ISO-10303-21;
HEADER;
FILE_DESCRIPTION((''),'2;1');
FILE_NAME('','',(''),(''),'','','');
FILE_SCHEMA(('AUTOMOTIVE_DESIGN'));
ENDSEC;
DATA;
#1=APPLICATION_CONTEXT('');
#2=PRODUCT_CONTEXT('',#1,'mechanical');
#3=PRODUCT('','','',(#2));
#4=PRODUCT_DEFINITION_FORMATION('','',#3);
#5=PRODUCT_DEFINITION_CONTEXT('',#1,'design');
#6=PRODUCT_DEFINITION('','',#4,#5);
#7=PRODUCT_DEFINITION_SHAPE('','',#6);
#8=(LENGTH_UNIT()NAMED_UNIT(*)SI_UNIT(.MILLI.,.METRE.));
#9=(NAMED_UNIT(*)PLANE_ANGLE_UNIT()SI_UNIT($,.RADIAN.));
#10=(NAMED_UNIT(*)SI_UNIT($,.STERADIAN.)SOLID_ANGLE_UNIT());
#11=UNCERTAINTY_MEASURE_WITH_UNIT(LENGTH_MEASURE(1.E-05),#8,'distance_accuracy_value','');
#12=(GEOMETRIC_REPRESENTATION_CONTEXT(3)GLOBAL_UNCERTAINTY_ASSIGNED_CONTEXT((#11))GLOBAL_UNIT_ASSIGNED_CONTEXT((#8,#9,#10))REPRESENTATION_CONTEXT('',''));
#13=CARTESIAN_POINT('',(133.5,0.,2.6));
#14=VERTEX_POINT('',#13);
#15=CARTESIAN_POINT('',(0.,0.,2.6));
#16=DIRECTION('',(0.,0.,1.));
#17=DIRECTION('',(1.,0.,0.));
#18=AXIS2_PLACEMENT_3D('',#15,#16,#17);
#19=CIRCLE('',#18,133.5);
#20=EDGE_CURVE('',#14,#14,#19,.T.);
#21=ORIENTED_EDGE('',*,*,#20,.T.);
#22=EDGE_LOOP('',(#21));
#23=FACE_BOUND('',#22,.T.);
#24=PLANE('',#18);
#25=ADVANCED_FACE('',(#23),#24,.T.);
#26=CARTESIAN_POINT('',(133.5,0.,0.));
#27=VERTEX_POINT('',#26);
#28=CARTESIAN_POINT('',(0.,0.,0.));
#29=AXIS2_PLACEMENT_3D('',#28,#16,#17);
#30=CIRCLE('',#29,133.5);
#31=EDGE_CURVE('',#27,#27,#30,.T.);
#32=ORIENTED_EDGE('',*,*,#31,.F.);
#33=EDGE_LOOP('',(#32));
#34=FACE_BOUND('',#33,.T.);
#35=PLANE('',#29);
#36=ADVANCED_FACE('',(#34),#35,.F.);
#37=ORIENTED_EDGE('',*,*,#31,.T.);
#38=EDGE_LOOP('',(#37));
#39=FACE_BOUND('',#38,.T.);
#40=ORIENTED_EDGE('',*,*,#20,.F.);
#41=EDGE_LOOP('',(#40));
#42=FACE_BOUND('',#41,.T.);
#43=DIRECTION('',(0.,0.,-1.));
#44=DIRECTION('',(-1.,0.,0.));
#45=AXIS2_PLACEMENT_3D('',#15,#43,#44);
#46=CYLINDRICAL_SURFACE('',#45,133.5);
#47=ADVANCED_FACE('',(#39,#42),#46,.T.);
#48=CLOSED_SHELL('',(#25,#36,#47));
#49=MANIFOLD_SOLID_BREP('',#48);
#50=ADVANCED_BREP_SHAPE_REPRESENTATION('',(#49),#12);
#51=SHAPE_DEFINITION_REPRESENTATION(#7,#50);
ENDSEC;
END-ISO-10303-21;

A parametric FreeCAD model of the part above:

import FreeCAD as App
import Part
import Sketcher

doc = App.newDocument("Part")
params = doc.addObject("Spreadsheet::Sheet", "Params")
for row, (alias, value) in enumerate([
    ("sketch1_diameter", "267 mm"),
    ("pad1_length", "2.6 mm"),
], start=1):
    params.set(f"A{row}", alias)
    params.set(f"B{row}", "=" + value)
    params.setAlias(f"B{row}", alias)

body = doc.addObject("PartDesign::Body", "Body")

sketch1 = body.newObject("Sketcher::SketchObject", "Sketch")
sketch1.AttachmentSupport = (doc.getObject("XY_Plane"), [""])
sketch1.MapMode = "FlatFace"
sketch1.addGeometry(Part.Circle(App.Vector(0, 0, 0), App.Vector(0, 0, 1), 134), False)
sketch1.addConstraint([
    Sketcher.Constraint("Coincident", 0, 3, -1, 1),
    Sketcher.Constraint("Diameter", 0, 267.0),
])
sketch1.setExpression("Constraints[1]", "Params.sketch1_diameter")
pad1 = body.newObject("PartDesign::Pad", "Pad")
pad1.Profile = sketch1
pad1.setExpression("Length", "Params.pad1_length")

doc.recompute()
